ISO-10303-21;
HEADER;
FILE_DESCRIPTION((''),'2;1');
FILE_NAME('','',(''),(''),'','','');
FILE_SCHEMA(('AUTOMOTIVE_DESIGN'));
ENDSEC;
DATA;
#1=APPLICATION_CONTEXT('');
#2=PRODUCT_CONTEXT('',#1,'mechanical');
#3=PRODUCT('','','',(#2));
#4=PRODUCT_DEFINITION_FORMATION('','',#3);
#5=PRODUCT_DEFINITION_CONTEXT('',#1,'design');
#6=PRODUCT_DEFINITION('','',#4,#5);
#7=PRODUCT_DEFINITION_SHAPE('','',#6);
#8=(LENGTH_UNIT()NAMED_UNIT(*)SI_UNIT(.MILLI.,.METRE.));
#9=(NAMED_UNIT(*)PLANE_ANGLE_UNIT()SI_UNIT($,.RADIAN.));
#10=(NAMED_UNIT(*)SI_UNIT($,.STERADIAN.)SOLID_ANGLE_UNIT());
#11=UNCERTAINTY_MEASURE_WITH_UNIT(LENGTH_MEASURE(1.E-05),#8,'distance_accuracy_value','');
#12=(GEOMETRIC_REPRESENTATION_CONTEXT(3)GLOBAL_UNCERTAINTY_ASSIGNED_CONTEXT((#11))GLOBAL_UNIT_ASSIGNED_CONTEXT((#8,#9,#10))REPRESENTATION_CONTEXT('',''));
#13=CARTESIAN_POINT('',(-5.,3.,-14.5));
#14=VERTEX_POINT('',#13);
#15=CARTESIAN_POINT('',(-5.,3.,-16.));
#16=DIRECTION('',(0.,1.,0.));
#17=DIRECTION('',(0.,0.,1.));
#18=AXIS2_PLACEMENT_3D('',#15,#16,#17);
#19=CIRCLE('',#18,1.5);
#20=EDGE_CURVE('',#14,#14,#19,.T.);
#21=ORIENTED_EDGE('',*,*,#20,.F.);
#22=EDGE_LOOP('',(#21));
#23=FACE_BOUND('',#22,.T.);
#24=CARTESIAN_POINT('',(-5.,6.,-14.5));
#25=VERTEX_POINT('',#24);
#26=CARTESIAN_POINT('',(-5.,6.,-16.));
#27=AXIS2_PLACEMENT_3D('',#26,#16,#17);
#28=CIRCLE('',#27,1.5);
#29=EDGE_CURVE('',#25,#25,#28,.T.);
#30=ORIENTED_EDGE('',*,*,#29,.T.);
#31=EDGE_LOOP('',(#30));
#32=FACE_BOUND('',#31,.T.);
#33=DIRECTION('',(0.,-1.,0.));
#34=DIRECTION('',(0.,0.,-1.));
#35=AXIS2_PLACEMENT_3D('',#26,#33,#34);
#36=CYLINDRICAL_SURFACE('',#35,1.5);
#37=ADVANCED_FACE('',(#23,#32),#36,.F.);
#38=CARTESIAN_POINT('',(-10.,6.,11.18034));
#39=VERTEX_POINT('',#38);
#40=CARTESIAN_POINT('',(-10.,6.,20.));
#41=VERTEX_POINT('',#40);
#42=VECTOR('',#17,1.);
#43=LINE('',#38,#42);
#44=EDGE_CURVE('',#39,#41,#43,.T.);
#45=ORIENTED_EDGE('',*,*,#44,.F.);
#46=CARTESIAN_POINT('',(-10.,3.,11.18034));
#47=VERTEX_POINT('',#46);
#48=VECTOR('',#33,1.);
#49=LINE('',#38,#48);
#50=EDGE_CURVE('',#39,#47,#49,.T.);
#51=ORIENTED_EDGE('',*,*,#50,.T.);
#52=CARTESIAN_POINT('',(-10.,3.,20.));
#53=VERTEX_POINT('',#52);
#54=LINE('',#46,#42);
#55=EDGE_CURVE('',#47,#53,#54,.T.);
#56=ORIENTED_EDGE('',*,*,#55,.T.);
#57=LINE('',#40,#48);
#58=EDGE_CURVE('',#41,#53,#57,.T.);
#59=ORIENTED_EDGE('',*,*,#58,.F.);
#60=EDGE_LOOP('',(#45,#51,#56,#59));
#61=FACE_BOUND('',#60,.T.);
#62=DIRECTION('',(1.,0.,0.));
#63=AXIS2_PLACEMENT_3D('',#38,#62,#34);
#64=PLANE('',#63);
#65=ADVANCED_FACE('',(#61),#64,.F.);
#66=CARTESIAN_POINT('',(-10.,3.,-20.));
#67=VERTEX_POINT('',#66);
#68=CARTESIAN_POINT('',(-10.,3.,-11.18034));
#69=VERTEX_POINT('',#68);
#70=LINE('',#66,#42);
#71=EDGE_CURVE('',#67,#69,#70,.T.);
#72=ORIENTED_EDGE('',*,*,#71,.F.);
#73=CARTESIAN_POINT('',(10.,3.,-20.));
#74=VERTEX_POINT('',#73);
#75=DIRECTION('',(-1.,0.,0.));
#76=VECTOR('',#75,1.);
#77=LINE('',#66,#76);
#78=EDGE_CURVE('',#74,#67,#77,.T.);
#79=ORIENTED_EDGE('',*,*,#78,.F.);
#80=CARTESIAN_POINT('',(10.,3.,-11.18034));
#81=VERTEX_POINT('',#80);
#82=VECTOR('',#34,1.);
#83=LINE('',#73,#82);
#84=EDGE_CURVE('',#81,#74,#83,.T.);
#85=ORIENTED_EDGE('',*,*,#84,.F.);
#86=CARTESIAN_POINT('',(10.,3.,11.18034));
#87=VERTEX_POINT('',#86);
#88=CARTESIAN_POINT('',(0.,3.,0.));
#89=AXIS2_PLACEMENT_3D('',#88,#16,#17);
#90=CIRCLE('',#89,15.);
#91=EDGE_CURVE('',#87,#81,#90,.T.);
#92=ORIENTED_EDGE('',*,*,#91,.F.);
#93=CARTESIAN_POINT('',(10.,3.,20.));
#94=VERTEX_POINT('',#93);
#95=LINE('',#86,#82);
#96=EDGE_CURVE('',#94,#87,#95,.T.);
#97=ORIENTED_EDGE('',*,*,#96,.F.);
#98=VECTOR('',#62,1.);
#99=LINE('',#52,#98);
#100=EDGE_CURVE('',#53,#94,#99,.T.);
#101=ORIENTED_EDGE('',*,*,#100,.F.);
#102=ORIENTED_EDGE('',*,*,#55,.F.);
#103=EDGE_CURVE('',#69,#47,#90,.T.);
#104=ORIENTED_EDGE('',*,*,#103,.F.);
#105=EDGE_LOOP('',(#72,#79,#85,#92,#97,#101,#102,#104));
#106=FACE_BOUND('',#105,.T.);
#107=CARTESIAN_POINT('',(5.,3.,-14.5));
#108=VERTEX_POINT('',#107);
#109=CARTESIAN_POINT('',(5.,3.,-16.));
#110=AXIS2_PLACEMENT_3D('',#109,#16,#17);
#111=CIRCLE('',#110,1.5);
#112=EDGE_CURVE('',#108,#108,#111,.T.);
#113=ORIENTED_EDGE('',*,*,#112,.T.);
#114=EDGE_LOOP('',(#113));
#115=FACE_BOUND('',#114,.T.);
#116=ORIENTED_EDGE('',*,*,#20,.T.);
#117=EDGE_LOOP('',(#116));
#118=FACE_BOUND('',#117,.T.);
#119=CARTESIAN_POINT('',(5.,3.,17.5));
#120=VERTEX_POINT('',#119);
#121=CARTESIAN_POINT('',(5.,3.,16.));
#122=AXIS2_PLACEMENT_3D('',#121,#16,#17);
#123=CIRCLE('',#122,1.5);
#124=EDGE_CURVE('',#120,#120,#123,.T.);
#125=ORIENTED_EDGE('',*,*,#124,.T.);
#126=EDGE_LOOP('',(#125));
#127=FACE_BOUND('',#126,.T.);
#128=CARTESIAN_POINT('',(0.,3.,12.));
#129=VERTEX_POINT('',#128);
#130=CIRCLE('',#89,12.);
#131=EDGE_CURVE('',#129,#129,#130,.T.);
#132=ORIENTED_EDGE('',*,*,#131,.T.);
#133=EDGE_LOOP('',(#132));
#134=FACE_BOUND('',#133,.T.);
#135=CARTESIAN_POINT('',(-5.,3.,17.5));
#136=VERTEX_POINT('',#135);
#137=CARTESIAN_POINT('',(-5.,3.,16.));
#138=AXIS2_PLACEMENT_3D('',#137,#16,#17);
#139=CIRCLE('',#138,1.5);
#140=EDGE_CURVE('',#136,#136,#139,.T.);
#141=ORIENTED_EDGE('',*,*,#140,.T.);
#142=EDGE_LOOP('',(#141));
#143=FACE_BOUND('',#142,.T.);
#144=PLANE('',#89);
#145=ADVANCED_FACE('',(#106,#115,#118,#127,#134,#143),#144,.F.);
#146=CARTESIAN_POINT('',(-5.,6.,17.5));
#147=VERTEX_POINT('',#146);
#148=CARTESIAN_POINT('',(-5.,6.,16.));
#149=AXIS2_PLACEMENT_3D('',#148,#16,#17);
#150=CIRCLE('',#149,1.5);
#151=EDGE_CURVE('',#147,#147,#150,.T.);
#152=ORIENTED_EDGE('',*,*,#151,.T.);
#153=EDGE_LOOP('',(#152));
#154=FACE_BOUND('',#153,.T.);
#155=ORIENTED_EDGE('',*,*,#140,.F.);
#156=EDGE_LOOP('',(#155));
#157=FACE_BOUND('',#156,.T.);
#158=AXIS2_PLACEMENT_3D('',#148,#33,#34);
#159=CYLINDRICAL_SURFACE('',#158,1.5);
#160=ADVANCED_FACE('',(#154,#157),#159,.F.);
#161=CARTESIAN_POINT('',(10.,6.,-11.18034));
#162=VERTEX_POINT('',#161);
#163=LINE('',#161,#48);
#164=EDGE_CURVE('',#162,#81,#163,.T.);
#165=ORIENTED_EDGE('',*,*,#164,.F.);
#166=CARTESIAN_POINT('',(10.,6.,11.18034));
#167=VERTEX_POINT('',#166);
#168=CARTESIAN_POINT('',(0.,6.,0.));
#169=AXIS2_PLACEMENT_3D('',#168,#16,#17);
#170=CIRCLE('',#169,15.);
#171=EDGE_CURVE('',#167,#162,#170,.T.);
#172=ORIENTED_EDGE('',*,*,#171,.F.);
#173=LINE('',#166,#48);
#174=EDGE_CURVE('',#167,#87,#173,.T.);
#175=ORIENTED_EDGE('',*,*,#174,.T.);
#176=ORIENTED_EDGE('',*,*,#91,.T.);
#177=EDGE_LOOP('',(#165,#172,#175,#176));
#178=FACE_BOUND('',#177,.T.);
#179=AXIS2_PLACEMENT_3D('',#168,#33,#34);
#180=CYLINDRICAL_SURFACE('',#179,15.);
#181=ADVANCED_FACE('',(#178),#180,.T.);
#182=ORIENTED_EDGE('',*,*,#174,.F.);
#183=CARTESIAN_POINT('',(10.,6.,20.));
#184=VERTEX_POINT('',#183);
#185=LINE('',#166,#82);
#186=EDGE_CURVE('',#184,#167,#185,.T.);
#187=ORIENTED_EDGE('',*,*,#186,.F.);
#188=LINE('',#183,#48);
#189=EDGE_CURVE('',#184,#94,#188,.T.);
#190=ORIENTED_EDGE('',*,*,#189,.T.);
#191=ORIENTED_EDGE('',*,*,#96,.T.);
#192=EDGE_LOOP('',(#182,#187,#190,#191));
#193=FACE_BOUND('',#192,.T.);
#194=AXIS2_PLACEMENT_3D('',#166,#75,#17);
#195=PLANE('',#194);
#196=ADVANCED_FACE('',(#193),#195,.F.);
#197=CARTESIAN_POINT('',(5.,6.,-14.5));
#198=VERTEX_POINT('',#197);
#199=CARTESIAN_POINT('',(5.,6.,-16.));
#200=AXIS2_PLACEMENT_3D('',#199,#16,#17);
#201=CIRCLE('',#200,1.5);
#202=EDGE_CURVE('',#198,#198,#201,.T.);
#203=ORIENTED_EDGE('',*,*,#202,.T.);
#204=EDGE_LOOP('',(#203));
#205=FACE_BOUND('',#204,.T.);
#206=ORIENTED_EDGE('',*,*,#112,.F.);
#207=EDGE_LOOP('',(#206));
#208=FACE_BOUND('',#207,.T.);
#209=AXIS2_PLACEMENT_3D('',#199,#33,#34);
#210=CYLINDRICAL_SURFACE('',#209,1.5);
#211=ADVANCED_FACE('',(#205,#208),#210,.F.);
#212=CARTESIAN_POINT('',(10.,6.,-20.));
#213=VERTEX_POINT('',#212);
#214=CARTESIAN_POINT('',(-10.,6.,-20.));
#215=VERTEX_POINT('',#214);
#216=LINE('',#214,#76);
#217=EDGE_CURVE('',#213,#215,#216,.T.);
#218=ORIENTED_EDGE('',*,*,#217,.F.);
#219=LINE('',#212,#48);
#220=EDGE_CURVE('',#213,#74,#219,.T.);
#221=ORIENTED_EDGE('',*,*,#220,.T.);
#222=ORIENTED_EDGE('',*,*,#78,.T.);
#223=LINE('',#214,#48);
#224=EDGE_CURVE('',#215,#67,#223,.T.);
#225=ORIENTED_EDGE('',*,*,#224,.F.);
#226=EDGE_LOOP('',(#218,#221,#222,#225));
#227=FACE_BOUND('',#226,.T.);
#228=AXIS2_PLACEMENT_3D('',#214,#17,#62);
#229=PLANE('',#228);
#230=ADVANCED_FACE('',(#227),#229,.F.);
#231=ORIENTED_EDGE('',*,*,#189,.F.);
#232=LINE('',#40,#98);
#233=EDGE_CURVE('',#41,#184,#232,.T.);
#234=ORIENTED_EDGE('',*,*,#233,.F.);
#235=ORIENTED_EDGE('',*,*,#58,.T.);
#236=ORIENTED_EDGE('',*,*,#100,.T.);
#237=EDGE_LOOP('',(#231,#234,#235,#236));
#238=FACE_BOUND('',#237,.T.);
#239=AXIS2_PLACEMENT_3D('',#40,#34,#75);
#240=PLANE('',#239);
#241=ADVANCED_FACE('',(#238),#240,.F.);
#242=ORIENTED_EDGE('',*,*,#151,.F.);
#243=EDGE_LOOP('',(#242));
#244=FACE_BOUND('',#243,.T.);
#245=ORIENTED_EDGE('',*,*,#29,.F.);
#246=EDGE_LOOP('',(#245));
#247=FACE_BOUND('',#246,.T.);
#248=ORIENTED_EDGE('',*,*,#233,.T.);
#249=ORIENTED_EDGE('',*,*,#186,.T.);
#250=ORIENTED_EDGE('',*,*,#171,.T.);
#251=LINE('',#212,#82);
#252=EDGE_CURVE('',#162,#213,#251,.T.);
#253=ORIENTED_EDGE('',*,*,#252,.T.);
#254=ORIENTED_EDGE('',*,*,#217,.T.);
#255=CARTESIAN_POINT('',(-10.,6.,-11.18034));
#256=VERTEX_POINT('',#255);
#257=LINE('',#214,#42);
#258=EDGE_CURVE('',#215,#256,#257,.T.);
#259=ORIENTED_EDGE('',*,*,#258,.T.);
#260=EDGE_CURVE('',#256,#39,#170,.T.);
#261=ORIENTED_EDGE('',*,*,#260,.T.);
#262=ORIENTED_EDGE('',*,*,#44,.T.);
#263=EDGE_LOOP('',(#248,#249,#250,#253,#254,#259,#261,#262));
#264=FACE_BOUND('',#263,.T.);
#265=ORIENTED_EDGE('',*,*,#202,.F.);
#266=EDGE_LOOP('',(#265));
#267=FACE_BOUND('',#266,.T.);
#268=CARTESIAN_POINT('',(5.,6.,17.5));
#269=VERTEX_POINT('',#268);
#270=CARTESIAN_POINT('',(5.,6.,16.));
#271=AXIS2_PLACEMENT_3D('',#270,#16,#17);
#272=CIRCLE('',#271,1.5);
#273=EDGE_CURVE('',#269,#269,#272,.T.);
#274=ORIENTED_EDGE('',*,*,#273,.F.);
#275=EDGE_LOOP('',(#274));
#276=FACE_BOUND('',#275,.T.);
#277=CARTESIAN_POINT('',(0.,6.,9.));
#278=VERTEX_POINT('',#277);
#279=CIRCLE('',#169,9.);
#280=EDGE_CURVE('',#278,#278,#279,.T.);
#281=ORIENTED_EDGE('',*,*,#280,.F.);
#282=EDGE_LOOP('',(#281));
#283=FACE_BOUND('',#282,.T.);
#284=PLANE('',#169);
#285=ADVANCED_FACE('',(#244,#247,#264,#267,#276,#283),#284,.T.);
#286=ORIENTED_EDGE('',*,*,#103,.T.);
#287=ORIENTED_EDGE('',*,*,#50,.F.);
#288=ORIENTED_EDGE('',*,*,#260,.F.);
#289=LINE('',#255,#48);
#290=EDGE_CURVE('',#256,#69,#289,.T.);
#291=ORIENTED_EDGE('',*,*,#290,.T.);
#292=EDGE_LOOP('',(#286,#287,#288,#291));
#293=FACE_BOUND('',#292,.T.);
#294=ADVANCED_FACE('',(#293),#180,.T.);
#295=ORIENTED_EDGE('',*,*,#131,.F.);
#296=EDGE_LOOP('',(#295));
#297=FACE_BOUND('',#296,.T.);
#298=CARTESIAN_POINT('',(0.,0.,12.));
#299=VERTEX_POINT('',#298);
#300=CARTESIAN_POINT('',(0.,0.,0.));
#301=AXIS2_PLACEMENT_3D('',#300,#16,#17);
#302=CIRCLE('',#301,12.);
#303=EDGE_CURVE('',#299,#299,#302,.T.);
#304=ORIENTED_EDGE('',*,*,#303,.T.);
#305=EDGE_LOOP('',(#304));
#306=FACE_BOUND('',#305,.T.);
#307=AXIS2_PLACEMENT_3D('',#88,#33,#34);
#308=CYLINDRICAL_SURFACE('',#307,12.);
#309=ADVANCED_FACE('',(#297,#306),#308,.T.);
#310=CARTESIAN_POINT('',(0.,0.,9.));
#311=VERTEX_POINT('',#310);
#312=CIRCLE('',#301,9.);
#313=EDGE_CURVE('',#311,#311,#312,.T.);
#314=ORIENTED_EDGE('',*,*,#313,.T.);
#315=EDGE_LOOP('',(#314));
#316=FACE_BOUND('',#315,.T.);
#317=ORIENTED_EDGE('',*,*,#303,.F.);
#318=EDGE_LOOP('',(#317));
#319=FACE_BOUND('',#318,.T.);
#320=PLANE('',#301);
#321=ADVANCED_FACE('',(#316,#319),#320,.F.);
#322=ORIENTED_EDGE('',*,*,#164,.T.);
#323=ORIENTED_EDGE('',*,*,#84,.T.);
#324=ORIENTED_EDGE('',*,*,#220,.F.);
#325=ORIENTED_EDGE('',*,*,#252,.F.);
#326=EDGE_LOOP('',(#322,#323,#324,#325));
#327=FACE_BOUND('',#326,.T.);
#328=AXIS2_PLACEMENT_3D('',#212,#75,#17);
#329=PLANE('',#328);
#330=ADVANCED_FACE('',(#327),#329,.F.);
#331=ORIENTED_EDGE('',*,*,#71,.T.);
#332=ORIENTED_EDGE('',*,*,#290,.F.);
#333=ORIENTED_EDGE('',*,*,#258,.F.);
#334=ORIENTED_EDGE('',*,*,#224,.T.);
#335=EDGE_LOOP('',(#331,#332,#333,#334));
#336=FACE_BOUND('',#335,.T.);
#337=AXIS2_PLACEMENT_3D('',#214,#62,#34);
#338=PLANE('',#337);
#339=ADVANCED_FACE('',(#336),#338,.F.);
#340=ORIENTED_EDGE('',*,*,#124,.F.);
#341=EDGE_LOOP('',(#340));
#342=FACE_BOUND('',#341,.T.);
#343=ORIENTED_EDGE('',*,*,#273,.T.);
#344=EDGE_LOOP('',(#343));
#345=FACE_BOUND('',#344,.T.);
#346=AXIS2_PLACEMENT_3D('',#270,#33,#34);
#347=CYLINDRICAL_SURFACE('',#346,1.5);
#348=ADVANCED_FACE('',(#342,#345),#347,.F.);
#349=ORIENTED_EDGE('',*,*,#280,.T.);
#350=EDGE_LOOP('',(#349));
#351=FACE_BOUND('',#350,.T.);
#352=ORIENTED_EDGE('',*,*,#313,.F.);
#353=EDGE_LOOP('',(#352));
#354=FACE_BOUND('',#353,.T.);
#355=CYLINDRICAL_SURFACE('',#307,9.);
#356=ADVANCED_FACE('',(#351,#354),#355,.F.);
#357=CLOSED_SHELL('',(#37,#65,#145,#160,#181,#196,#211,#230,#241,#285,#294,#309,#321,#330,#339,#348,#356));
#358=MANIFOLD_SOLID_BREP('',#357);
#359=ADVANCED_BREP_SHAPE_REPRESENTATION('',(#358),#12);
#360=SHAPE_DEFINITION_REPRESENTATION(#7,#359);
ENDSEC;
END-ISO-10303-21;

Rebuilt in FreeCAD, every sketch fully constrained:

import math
import FreeCAD as App
import Part
import Sketcher
from FreeCAD import Vector

doc = App.newDocument("Part")
body = doc.addObject("PartDesign::Body", "Body")

# Sketch on XZ plane
sketch1 = doc.addObject("Sketcher::SketchObject", "Sketch")
body.addObject(sketch1)
sketch1.AttachmentSupport = (doc.XZ_Plane, [""])
sketch1.MapMode = "FlatFace"
sketch1.addGeometry(Part.Circle(Vector(0, 0, 0), Vector(0, 0, 1), 12), False)
sketch1.addGeometry(Part.Circle(Vector(0, 0, 0), Vector(0, 0, 1), 9), False)
sketch1.addConstraint(Sketcher.Constraint("Coincident", 0, 3, -1, 1))
sketch1.addConstraint(Sketcher.Constraint("Coincident", 1, 3, -1, 1))
sketch1.addConstraint(Sketcher.Constraint("Diameter", 0, 24.0))
sketch1.addConstraint(Sketcher.Constraint("Diameter", 1, 18.0))
pad1 = doc.addObject("PartDesign::Pad", "Pad")
body.addObject(pad1)
pad1.Profile = sketch1
pad1.Length = 3
pad1.Reversed = True

# Sketch on XZ plane
sketch2 = doc.addObject("Sketcher::SketchObject", "Sketch001")
body.addObject(sketch2)
sketch2.AttachmentSupport = (doc.XZ_Plane, [""])
sketch2.MapMode = "FlatFace"
sketch2.AttachmentOffset = App.Placement(Vector(0, 0, -3), App.Rotation())
sketch2.addGeometry(Part.LineSegment(Vector(-10, 11.2, 0), Vector(-10, 20, 0)), False)
sketch2.addGeometry(Part.LineSegment(Vector(-10, 20, 0), Vector(10, 20, 0)), False)
sketch2.addGeometry(Part.LineSegment(Vector(10, 20, 0), Vector(10, 11.2, 0)), False)
sketch2.addGeometry(Part.ArcOfCircle(Part.Circle(Vector(0, 0, 0), Vector(0, 0, 1), 15), math.radians(-48), math.radians(48)), False)
sketch2.addGeometry(Part.LineSegment(Vector(10, -11.2, 0), Vector(10, -20, 0)), False)
sketch2.addGeometry(Part.LineSegment(Vector(10, -20, 0), Vector(-10, -20, 0)), False)
sketch2.addGeometry(Part.LineSegment(Vector(-10, -20, 0), Vector(-10, -11.2, 0)), False)
sketch2.addGeometry(Part.ArcOfCircle(Part.Circle(Vector(0, 0, 0), Vector(0, 0, 1), 15), math.radians(132), math.radians(228)), False)
sketch2.addGeometry(Part.Circle(Vector(-5, 16, 0), Vector(0, 0, 1), 1.5), False)
sketch2.addGeometry(Part.Circle(Vector(5, 16, 0), Vector(0, 0, 1), 1.5), False)
sketch2.addGeometry(Part.Circle(Vector(-5, -16, 0), Vector(0, 0, 1), 1.5), False)
sketch2.addGeometry(Part.Circle(Vector(0, 0, 0), Vector(0, 0, 1), 9), False)
sketch2.addGeometry(Part.Circle(Vector(5, -16, 0), Vector(0, 0, 1), 1.5), False)
sketch2.addConstraint(Sketcher.Constraint("Coincident", 0, 2, 1, 1))
sketch2.addConstraint(Sketcher.Constraint("Coincident", 1, 2, 2, 1))
sketch2.addConstraint(Sketcher.Constraint("Coincident", 2, 2, 3, 2))
sketch2.addConstraint(Sketcher.Constraint("Coincident", 3, 1, 4, 1))
sketch2.addConstraint(Sketcher.Constraint("Coincident", 4, 2, 5, 1))
sketch2.addConstraint(Sketcher.Constraint("Coincident", 5, 2, 6, 1))
sketch2.addConstraint(Sketcher.Constraint("Coincident", 6, 2, 7, 2))
sketch2.addConstraint(Sketcher.Constraint("Coincident", 7, 1, 0, 1))
sketch2.addConstraint(Sketcher.Constraint("Vertical", 0))
sketch2.addConstraint(Sketcher.Constraint("Horizontal", 1))
sketch2.addConstraint(Sketcher.Constraint("Vertical", 2))
sketch2.addConstraint(Sketcher.Constraint("Vertical", 4))
sketch2.addConstraint(Sketcher.Constraint("Horizontal", 5))
sketch2.addConstraint(Sketcher.Constraint("Vertical", 6))
sketch2.addConstraint(Sketcher.Constraint("Coincident", 3, 3, -1, 1))
sketch2.addConstraint(Sketcher.Constraint("Coincident", 7, 3, -1, 1))
sketch2.addConstraint(Sketcher.Constraint("Coincident", 11, 3, -1, 1))
sketch2.addConstraint(Sketcher.Constraint("Equal", 3, 7))
sketch2.addConstraint(Sketcher.Constraint("Equal", 8, 9))
sketch2.addConstraint(Sketcher.Constraint("Equal", 9, 10))
sketch2.addConstraint(Sketcher.Constraint("Equal", 10, 12))
sketch2.addConstraint(Sketcher.Constraint("Symmetric", 9, 3, 10, 3, -1, 1))
sketch2.addConstraint(Sketcher.Constraint("Symmetric", 8, 3, 12, 3, -1, 1))
sketch2.addConstraint(Sketcher.Constraint("Symmetric", 0, 2, 4, 2, -1, 1))
sketch2.addConstraint(Sketcher.Constraint("Symmetric", 8, 3, 9, 3, -2))
sketch2.addConstraint(Sketcher.Constraint("Horizontal", 3, 1, 6, 2))
sketch2.addConstraint(Sketcher.Constraint("Horizontal", 2, 2, 7, 1))
sketch2.addConstraint(Sketcher.Constraint("Diameter", 8, 3.0))
sketch2.addConstraint(Sketcher.Constraint("Diameter", 11, 18.0))
sketch2.addConstraint(Sketcher.Constraint("Radius", 3, 15.0))
sketch2.addConstraint(Sketcher.Constraint("DistanceX", 1, 1, 1, 2, 20.0))
sketch2.addConstraint(Sketcher.Constraint("DistanceX", 8, 3, -1, 1, 5.0))
sketch2.addConstraint(Sketcher.Constraint("DistanceY", -1, 1, 8, 3, 16.0))
sketch2.addConstraint(Sketcher.Constraint("DistanceY", -1, 1, 0, 2, 20.0))
pad2 = doc.addObject("PartDesign::Pad", "Pad001")
body.addObject(pad2)
pad2.Profile = sketch2
pad2.Length = 3
pad2.Reversed = True

doc.recompute()
